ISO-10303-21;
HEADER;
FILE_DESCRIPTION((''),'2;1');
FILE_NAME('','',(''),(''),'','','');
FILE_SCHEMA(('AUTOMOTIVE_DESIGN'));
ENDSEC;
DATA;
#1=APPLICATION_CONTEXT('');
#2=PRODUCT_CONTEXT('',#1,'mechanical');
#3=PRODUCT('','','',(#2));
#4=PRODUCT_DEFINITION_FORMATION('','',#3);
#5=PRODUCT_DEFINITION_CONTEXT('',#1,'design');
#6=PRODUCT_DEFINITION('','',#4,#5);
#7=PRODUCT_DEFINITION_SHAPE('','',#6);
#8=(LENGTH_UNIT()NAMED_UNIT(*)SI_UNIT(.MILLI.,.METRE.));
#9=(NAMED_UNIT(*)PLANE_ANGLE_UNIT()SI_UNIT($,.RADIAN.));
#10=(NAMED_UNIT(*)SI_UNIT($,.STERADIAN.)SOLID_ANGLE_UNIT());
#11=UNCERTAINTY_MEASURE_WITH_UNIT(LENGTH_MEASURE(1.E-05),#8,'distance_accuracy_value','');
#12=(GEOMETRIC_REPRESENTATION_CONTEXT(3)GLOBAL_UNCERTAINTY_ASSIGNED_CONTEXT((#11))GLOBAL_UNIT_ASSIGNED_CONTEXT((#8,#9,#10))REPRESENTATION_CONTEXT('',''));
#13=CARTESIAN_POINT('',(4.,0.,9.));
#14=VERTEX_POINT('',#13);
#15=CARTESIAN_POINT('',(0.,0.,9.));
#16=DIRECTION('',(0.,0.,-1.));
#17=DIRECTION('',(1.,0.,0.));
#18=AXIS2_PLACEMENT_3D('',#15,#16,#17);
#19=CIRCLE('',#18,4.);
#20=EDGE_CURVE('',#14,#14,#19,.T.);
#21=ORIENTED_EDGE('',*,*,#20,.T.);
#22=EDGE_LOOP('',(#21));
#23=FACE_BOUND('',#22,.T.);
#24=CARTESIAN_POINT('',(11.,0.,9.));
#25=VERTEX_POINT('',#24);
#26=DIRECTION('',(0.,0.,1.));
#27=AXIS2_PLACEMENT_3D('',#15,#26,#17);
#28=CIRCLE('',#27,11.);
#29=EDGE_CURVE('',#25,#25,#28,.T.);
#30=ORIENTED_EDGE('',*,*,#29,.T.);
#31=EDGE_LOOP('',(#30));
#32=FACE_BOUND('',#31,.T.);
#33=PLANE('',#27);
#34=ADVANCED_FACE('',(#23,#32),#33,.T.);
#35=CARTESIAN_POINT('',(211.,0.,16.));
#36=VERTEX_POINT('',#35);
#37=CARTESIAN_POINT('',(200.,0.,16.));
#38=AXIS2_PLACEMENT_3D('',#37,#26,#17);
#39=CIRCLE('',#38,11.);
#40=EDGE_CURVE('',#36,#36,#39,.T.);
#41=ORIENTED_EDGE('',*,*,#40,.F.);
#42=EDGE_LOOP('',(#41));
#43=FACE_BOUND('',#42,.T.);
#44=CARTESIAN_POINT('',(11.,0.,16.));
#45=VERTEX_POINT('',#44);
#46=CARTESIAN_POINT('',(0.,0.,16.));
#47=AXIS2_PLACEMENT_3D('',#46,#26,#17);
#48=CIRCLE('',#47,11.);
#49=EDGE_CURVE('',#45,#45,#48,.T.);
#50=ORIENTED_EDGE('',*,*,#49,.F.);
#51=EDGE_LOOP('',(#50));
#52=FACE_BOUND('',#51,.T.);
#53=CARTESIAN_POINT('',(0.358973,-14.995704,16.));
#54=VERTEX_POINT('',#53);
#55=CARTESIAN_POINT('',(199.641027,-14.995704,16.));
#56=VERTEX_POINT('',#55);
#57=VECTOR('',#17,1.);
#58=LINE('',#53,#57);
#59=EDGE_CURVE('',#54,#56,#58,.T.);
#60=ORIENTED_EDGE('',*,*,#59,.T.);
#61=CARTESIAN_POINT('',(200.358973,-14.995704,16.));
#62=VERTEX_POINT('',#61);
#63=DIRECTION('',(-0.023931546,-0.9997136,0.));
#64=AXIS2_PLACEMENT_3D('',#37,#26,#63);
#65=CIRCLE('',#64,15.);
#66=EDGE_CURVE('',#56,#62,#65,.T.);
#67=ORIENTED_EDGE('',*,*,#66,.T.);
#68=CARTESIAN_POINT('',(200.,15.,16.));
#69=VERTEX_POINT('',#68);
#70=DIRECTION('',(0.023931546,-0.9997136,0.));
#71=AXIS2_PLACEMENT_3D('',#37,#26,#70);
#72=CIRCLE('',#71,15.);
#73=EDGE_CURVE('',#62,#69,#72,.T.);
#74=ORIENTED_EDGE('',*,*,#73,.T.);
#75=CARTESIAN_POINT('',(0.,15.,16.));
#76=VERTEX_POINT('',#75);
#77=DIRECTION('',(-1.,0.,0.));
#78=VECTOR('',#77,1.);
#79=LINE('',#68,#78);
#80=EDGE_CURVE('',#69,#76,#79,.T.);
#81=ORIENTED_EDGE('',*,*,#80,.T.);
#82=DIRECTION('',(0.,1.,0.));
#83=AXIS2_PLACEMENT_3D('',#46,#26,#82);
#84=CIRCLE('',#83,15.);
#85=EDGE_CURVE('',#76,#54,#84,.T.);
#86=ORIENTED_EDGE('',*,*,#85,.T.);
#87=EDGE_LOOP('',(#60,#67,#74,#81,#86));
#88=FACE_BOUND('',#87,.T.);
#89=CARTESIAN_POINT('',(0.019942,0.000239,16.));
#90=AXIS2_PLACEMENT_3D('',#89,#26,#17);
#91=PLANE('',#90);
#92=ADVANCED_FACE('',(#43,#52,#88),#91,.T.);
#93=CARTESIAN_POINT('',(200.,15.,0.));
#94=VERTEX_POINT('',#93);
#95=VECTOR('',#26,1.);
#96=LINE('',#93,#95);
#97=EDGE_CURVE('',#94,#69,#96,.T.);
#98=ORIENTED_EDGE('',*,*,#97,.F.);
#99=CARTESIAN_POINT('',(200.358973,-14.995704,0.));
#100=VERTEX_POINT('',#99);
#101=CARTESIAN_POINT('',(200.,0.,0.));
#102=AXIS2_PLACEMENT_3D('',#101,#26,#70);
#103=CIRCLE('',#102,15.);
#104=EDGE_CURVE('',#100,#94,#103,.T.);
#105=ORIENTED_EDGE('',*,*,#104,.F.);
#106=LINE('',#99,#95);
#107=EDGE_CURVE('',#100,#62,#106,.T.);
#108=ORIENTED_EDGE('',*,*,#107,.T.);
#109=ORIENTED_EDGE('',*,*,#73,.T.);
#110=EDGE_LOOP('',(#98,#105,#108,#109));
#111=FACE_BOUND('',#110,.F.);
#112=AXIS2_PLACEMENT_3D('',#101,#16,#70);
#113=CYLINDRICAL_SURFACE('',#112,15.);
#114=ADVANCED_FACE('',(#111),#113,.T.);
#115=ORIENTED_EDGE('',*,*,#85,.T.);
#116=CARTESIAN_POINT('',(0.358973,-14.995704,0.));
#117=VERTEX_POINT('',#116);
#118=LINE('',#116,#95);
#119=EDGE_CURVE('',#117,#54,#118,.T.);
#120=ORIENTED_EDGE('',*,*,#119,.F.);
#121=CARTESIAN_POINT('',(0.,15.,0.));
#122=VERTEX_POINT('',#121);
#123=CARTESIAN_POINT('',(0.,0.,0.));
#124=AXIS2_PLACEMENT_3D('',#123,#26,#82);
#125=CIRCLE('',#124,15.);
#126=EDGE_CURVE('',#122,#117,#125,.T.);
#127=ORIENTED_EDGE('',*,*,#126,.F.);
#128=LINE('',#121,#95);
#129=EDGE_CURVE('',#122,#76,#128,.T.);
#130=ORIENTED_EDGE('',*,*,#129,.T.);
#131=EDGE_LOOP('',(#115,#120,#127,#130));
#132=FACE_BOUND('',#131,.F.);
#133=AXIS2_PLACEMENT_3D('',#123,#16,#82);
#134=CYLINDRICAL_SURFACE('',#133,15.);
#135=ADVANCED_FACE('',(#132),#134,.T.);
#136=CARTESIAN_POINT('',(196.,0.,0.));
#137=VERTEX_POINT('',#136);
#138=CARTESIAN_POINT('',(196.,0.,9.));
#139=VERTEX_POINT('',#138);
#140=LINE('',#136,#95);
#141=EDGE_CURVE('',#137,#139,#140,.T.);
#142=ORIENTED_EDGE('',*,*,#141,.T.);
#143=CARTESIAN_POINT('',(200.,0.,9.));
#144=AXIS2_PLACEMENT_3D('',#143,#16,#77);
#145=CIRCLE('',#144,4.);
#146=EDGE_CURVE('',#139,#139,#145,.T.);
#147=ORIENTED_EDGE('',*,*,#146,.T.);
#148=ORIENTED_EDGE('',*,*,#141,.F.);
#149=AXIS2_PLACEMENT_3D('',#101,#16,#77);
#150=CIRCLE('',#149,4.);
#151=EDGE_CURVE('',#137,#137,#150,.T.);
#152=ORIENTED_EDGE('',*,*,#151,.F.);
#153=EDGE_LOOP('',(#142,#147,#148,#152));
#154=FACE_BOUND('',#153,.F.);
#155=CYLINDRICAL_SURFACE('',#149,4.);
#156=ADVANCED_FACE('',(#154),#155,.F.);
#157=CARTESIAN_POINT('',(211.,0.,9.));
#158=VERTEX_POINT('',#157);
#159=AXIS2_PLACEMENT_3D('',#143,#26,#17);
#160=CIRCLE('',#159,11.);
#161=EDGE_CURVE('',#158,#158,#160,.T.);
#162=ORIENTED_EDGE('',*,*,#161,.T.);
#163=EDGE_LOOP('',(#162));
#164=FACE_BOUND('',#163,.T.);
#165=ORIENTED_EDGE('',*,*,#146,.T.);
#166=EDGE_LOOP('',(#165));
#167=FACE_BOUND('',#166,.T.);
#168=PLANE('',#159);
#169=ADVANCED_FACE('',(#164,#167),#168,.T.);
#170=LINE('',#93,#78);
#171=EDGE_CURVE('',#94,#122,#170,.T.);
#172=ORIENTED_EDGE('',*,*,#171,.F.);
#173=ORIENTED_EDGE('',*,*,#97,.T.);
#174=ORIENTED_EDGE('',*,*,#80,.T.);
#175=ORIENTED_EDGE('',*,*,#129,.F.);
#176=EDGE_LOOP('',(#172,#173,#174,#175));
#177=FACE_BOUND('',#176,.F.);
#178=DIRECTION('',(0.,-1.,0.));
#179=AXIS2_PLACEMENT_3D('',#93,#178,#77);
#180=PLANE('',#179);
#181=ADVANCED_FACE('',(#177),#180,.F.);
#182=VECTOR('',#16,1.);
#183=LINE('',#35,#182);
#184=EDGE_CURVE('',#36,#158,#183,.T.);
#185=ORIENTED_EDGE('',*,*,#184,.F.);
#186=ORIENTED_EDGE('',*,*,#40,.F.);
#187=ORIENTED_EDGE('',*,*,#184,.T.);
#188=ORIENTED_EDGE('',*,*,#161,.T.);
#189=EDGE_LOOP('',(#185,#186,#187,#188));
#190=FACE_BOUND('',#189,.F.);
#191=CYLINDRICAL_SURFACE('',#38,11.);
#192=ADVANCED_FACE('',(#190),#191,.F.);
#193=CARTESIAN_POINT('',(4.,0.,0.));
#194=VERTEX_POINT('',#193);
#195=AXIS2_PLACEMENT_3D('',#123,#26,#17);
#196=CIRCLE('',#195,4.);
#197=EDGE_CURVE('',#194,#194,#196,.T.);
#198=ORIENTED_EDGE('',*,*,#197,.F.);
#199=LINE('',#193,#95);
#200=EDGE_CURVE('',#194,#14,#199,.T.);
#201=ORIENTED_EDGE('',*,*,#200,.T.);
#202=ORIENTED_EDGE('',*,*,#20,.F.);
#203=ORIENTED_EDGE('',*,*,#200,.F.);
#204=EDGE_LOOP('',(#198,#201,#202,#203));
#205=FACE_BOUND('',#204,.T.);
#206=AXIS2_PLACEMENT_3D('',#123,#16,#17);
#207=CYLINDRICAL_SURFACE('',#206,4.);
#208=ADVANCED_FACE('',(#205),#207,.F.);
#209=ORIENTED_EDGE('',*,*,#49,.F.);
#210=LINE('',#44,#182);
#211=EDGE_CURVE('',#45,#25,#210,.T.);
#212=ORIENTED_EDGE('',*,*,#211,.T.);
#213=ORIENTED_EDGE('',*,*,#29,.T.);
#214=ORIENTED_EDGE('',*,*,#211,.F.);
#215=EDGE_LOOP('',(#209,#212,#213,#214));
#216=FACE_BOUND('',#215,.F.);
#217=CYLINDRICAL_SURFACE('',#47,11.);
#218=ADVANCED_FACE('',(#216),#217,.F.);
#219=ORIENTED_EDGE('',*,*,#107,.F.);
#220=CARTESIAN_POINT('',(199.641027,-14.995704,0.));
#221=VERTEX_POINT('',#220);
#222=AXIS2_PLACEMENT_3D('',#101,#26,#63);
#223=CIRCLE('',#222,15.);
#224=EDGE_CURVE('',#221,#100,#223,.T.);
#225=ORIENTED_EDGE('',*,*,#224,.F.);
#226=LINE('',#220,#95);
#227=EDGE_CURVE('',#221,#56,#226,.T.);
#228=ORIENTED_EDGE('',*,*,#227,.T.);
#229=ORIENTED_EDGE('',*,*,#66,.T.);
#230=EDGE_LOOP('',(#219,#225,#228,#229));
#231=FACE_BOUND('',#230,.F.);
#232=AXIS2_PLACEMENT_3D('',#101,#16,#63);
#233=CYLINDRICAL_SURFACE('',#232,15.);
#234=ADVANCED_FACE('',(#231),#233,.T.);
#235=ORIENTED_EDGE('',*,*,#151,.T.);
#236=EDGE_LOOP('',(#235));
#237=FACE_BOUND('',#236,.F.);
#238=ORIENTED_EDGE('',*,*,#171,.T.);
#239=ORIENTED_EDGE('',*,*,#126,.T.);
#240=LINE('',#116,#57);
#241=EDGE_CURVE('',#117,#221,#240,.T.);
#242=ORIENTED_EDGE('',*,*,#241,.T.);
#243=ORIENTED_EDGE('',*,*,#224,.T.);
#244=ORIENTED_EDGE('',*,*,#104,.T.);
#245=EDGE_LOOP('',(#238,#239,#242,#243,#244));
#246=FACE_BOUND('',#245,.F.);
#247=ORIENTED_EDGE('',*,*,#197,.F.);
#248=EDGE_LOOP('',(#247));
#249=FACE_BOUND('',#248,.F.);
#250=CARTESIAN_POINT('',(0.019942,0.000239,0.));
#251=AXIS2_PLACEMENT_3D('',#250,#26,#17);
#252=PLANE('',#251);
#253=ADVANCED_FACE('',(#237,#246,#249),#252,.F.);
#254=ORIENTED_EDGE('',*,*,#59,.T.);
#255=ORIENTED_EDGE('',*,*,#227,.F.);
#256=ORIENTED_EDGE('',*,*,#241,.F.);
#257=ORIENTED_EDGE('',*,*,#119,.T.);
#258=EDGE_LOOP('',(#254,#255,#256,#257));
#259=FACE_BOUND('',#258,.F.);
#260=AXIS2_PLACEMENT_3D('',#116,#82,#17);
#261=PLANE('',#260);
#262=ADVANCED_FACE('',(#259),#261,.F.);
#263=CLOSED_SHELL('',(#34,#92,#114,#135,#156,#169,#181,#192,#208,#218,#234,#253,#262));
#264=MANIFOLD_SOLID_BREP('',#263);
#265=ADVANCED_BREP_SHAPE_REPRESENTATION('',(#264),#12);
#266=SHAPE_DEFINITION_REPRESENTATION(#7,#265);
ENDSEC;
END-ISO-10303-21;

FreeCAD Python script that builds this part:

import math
import FreeCAD as App
import Part
import Sketcher
from FreeCAD import Vector
Q = App.Units.Quantity

doc = App.newDocument("Part")
params = doc.addObject("Spreadsheet::Sheet", "Params")
for row, (alias, value) in enumerate([
    ("sketch1_diameter", "8 mm"),
    ("sketch1_radius", "15 mm"),
    ("sketch1_width", "200 mm"),
    ("pad1_length", "16 mm"),
    ("sketch2_diameter", "22 mm"),
    ("pocket1_length", "7 mm"),
], start=1):
    params.set(f"A{row}", alias)
    params.set(f"B{row}", "=" + value)
    params.setAlias(f"B{row}", alias)

body = doc.addObject("PartDesign::Body", "Body")

# Sketch on XY plane
sketch1 = body.newObject("Sketcher::SketchObject", "Sketch")
sketch1.AttachmentSupport = (doc.getObject("XY_Plane"), [""])
sketch1.MapMode = "FlatFace"
sketch1.addGeometry(Part.ArcOfCircle(Part.Circle(Vector(0, 0, 0), Vector(0, 0, 1), 15), math.radians(90), math.radians(271)), False)
sketch1.addGeometry(Part.LineSegment(Vector(0.4, -15, 0), Vector(199.6, -15, 0)), False)
sketch1.addGeometry(Part.ArcOfCircle(Part.Circle(Vector(200, 0, 0), Vector(0, 0, 1), 15), math.radians(-91.37), math.radians(-88.63)), False)
sketch1.addGeometry(Part.ArcOfCircle(Part.Circle(Vector(200, 0, 0), Vector(0, 0, 1), 15), math.radians(-89), math.radians(90)), False)
sketch1.addGeometry(Part.LineSegment(Vector(200, 15, 0), Vector(0, 15, 0)), False)
sketch1.addGeometry(Part.Circle(Vector(0, 0, 0), Vector(0, 0, 1), 4), False)
sketch1.addGeometry(Part.Circle(Vector(200, 0, 0), Vector(0, 0, 1), 4), False)
sketch1.addConstraint(Sketcher.Constraint("Coincident", 0, 2, 1, 1))
sketch1.addConstraint(Sketcher.Constraint("Coincident", 1, 2, 2, 1))
sketch1.addConstraint(Sketcher.Constraint("Tangent", 2, 2, 3, 1))
sketch1.addConstraint(Sketcher.Constraint("Tangent", 3, 2, 4, 1))
sketch1.addConstraint(Sketcher.Constraint("Tangent", 4, 2, 0, 1))
sketch1.addConstraint(Sketcher.Constraint("Horizontal", 1))
sketch1.addConstraint(Sketcher.Constraint("Horizontal", 4))
sketch1.addConstraint(Sketcher.Constraint("Coincident", 0, 3, -1, 1))
sketch1.addConstraint(Sketcher.Constraint("Coincident", 5, 3, -1, 1))
sketch1.addConstraint(Sketcher.Constraint("Coincident", 6, 3, 2, 3))
sketch1.addConstraint(Sketcher.Constraint("Equal", 0, 2))
sketch1.addConstraint(Sketcher.Constraint("Equal", 2, 3))
sketch1.addConstraint(Sketcher.Constraint("Equal", 5, 6))
sketch1.addConstraint(Sketcher.Constraint("Horizontal", 1, 2, 2, 2))
sketch1.addConstraint(Sketcher.Constraint("Diameter", 5, Q("8 mm")))
sketch1.addConstraint(Sketcher.Constraint("Radius", 0, Q("15 mm")))
sketch1.addConstraint(Sketcher.Constraint("DistanceX", 4, 2, 4, 1, Q("200 mm")))
sketch1.addConstraint(Sketcher.Constraint("DistanceX", 1, 1, 1, 2, Q("199.282054 mm")))
sketch1.setExpression("Constraints[14]", "Params.sketch1_diameter")
sketch1.setExpression("Constraints[15]", "Params.sketch1_radius")
sketch1.setExpression("Constraints[16]", "Params.sketch1_width")
pad1 = body.newObject("PartDesign::Pad", "Pad")
pad1.Profile = sketch1
pad1.setExpression("Length", "Params.pad1_length")

# Sketch on XY plane
sketch2 = body.newObject("Sketcher::SketchObject", "Sketch001")
sketch2.AttachmentSupport = (doc.getObject("XY_Plane"), [""])
sketch2.MapMode = "FlatFace"
sketch2.AttachmentOffset = App.Placement(Vector(0, 0, 16), App.Rotation())
sketch2.addGeometry(Part.Circle(Vector(0, 0, 0), Vector(0, 0, 1), 11), False)
sketch2.addGeometry(Part.Circle(Vector(200, 0, 0), Vector(0, 0, 1), 11), False)
sketch2.addConstraint(Sketcher.Constraint("Coincident", 0, 3, -1, 1))
sketch2.addConstraint(Sketcher.Constraint("Equal", 0, 1))
sketch2.addConstraint(Sketcher.Constraint("PointOnObject", 1, 3, -1))
sketch2.addConstraint(Sketcher.Constraint("Diameter", 0, Q("22 mm")))
sketch2.addConstraint(Sketcher.Constraint("DistanceX", -1, 1, 1, 3, Q("200 mm")))
sketch2.setExpression("Constraints[3]", "Params.sketch2_diameter")
pocket1 = body.newObject("PartDesign::Pocket", "Pocket")
pocket1.Profile = sketch2
pocket1.setExpression("Length", "Params.pocket1_length")

doc.recompute()
